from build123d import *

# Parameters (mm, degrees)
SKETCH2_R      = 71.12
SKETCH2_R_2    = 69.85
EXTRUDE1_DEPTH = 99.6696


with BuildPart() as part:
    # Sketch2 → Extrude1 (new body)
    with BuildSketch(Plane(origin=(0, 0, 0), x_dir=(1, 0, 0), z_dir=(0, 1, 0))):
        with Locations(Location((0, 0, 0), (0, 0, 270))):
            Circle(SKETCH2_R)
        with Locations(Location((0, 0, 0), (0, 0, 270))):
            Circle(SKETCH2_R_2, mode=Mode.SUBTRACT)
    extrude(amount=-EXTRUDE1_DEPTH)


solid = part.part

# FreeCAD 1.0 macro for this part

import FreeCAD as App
import Part
import Sketcher

V = App.Vector
Q = App.Units.Quantity

doc = App.newDocument("Part")
body = doc.addObject("PartDesign::Body", "Body")

# Sketch on XZ plane
sketch1 = doc.addObject("Sketcher::SketchObject", "Sketch")
body.addObject(sketch1)
sketch1.AttachmentSupport = (doc.XZ_Plane, [""])
sketch1.MapMode = "FlatFace"
sketch1.addGeometry([
    Part.Circle(V(0, 0, 0), V(0, 0, 1), 71.12),
    Part.Circle(V(0, 0, 0), V(0, 0, 1), 69.85),
], False)
sketch1.addConstraint([
    Sketcher.Constraint("Coincident", 0, 3, -1, 1),
    Sketcher.Constraint("Coincident", 1, 3, -1, 1),
    Sketcher.Constraint("Diameter", 0, Q("5.6 in")),
    Sketcher.Constraint("Diameter", 1, Q("5.5 in")),
])
pad1 = doc.addObject("PartDesign::Pad", "Pad")
body.addObject(pad1)
pad1.Profile = sketch1
pad1.Length = Q("3.924 in")

doc.recompute()
